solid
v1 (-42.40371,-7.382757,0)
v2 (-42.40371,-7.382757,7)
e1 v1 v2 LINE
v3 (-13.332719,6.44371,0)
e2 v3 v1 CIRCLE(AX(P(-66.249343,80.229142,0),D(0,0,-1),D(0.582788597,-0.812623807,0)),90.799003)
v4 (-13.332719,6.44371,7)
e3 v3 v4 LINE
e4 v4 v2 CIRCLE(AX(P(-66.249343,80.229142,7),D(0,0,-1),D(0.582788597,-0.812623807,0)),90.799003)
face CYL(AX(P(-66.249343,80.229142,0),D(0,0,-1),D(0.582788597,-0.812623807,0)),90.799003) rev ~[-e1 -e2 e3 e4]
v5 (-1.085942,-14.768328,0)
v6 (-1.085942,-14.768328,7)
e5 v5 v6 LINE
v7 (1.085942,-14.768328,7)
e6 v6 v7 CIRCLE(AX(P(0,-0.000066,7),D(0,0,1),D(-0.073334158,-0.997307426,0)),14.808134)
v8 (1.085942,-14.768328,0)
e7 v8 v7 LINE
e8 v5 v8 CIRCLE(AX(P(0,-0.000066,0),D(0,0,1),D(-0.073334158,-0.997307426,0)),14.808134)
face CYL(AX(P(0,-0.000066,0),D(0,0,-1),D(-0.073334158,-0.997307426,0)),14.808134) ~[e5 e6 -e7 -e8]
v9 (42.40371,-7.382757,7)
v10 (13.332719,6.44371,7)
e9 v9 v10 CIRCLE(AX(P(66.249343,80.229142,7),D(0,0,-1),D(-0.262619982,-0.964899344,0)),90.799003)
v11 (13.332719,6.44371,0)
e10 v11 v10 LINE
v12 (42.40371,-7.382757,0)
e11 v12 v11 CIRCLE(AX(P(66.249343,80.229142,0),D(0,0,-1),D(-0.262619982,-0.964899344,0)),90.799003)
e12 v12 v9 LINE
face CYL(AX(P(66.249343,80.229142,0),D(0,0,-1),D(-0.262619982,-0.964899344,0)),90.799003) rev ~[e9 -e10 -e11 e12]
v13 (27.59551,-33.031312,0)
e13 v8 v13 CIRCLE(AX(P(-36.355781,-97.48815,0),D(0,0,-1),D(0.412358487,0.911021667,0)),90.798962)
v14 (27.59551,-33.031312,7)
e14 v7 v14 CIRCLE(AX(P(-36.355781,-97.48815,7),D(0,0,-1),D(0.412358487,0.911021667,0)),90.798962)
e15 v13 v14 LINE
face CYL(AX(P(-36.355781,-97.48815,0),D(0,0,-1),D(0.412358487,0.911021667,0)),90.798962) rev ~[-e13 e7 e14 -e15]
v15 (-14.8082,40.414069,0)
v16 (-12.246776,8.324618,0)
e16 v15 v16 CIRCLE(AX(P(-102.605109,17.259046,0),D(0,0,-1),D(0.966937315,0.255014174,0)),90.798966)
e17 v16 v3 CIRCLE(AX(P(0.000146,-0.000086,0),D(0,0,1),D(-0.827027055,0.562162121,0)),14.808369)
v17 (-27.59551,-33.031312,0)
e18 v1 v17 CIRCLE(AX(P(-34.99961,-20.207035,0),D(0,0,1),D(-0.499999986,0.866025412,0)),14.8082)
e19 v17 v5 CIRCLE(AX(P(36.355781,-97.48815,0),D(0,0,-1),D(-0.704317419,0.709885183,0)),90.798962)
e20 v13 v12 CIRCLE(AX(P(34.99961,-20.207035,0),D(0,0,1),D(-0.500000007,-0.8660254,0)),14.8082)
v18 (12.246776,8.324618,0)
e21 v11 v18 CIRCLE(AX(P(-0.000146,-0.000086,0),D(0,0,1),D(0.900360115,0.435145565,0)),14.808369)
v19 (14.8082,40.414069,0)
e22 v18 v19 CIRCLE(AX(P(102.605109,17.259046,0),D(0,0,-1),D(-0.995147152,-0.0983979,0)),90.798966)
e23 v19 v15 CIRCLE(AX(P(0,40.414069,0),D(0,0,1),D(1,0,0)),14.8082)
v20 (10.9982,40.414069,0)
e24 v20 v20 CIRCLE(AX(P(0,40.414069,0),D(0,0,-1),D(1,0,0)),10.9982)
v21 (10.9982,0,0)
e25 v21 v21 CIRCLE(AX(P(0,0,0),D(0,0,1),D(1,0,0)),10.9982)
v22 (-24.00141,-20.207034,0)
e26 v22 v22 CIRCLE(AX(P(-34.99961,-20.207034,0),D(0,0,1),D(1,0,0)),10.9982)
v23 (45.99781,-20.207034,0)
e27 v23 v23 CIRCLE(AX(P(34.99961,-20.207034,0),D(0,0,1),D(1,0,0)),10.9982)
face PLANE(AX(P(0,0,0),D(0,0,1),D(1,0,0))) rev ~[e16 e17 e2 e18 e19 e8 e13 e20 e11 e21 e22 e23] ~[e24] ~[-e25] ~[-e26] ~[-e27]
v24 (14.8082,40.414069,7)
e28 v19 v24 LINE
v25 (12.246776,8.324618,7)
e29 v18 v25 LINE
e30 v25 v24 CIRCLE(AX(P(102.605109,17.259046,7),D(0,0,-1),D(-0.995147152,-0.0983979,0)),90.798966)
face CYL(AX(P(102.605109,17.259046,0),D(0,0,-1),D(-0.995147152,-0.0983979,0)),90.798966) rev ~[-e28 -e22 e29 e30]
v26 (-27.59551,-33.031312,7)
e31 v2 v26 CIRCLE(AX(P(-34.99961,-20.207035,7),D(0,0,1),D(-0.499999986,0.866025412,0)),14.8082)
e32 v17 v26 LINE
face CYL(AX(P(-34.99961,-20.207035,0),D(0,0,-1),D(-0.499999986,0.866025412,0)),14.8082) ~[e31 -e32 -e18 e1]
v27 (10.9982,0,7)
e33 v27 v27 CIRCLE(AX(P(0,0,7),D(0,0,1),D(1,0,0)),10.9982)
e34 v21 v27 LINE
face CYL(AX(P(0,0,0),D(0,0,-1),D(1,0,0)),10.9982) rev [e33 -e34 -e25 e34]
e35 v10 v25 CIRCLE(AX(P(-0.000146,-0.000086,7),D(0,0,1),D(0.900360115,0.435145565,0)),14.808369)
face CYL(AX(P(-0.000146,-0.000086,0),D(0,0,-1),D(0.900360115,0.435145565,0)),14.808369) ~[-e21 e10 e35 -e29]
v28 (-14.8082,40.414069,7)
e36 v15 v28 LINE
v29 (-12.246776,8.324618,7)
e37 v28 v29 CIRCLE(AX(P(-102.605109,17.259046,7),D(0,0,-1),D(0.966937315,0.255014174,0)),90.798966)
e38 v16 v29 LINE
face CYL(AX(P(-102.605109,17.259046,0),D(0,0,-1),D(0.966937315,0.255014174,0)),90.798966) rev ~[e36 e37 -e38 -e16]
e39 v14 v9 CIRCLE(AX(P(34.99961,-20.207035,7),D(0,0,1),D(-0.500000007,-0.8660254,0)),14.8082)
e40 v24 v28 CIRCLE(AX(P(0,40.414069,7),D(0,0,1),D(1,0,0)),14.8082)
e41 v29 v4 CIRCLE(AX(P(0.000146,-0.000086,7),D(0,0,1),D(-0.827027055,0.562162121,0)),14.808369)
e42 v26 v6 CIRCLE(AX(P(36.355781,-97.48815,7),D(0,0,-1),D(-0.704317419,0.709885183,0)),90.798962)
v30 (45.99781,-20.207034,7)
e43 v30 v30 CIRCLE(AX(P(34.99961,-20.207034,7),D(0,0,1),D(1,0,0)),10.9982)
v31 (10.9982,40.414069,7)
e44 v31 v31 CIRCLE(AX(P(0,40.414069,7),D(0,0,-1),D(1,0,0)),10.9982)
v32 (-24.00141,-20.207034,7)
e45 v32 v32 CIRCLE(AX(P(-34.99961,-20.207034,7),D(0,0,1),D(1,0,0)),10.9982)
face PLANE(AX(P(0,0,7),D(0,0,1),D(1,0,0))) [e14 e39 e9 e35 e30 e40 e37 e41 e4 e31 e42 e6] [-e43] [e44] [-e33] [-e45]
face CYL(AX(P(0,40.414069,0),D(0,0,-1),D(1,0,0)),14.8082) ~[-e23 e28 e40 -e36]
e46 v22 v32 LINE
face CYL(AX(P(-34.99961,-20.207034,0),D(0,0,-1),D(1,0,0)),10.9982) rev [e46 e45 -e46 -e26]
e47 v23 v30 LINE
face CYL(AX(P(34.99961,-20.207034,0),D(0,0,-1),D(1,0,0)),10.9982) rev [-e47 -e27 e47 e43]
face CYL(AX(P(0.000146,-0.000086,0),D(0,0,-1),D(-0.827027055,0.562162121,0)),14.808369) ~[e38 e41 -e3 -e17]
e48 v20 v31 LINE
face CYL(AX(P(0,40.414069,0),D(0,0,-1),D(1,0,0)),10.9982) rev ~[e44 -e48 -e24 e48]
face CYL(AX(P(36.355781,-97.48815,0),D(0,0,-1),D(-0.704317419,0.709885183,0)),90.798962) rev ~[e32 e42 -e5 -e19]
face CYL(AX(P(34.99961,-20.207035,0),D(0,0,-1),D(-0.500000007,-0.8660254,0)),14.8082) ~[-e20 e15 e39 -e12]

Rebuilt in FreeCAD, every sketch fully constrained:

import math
import FreeCAD as App
import Part
import Sketcher
from FreeCAD import Vector
Q = App.Units.Quantity

doc = App.newDocument("Part")
params = doc.addObject("Spreadsheet::Sheet", "Params")
for row, (alias, value) in enumerate([
    ("sketch1_diameter", "0.866 in"),
    ("sketch1_radius", "0.583 in"),
    ("pad1_length", "7 mm"),
], start=1):
    params.set(f"A{row}", alias)
    params.set(f"B{row}", "=" + value)
    params.setAlias(f"B{row}", alias)

body = doc.addObject("PartDesign::Body", "Body")

sketch1 = doc.addObject("Sketcher::SketchObject", "Sketch")
body.addObject(sketch1)
sketch1.AttachmentSupport = (doc.XY_Plane, [""])
sketch1.MapMode = "FlatFace"
sketch1.addGeometry([
    Part.ArcOfCircle(Part.Circle(Vector(102.605109, 17.259046, 0), Vector(0, 0, 1), 90.798966), math.radians(165.225575), math.radians(185.646922)),
    Part.ArcOfCircle(Part.Circle(Vector(0, 40.414069, 0), Vector(0, 0, 1), 14.8082), math.radians(0), math.radians(180)),
    Part.ArcOfCircle(Part.Circle(Vector(-102.605109, 17.259046, 0), Vector(0, 0, 1), 90.798966), math.radians(-5.646922), math.radians(14.774425)),
    Part.ArcOfCircle(Part.Circle(Vector(0.000146, -0.000086, 0), Vector(0, 0, 1), 14.808369), math.radians(145.794545), math.radians(154.205443)),
    Part.ArcOfCircle(Part.Circle(Vector(-66.249343, 80.229142, 0), Vector(0, 0, 1), 90.799003), math.radians(-74.77442), math.radians(-54.353082)),
    Part.ArcOfCircle(Part.Circle(Vector(-34.99961, -20.207035, 0), Vector(0, 0, 1), 14.8082), math.radians(119.999999), math.radians(300)),
    Part.ArcOfCircle(Part.Circle(Vector(36.355781, -97.48815, 0), Vector(0, 0, 1), 90.798962), math.radians(114.353078), math.radians(134.774426)),
    Part.ArcOfCircle(Part.Circle(Vector(0, -0.000066, 0), Vector(0, 0, 1), 14.808134), math.radians(-94.205513), math.radians(-85.794487)),
    Part.ArcOfCircle(Part.Circle(Vector(-36.355781, -97.48815, 0), Vector(0, 0, 1), 90.798962), math.radians(45.225574), math.radians(65.646922)),
    Part.ArcOfCircle(Part.Circle(Vector(34.99961, -20.207035, 0), Vector(0, 0, 1), 14.8082), math.radians(-120), math.radians(60.000001)),
    Part.ArcOfCircle(Part.Circle(Vector(66.249343, 80.229142, 0), Vector(0, 0, 1), 90.799003), math.radians(-125.646918), math.radians(-105.22558)),
    Part.ArcOfCircle(Part.Circle(Vector(-0.000146, -0.000086, 0), Vector(0, 0, 1), 14.808369), math.radians(25.794557), math.radians(34.205455)),
    Part.Circle(Vector(-34.99961, -20.207034, 0), Vector(0, 0, 1), 10.9982),
    Part.Circle(Vector(34.99961, -20.207034, 0), Vector(0, 0, 1), 10.9982),
    Part.Circle(Vector(0, 0, 0), Vector(0, 0, 1), 10.9982),
    Part.Circle(Vector(0, 40.414069, 0), Vector(0, 0, 1), 10.9982),
], False)
sketch1.addConstraint([
    Sketcher.Constraint("Coincident", 0, 1, 1, 1),
    Sketcher.Constraint("Coincident", 1, 2, 2, 2),
    Sketcher.Constraint("Coincident", 2, 1, 3, 1),
    Sketcher.Constraint("Coincident", 3, 2, 4, 2),
    Sketcher.Constraint("Coincident", 4, 1, 5, 1),
    Sketcher.Constraint("Coincident", 5, 2, 6, 2),
    Sketcher.Constraint("Coincident", 6, 1, 7, 1),
    Sketcher.Constraint("Coincident", 7, 2, 8, 2),
    Sketcher.Constraint("Coincident", 8, 1, 9, 1),
    Sketcher.Constraint("Coincident", 9, 2, 10, 2),
    Sketcher.Constraint("Coincident", 10, 1, 11, 1),
    Sketcher.Constraint("Coincident", 11, 2, 0, 2),
    Sketcher.Constraint("Coincident", 14, 3, -1, 1),
    Sketcher.Constraint("Coincident", 12, 3, 5, 3),
    Sketcher.Constraint("Coincident", 13, 3, 9, 3),
    Sketcher.Constraint("Coincident", 15, 3, 1, 3),
    Sketcher.Constraint("Equal", 0, 2),
    Sketcher.Constraint("Equal", 1, 5),
    Sketcher.Constraint("Equal", 6, 8),
    Sketcher.Constraint("Equal", 5, 9),
    Sketcher.Constraint("Equal", 4, 10),
    Sketcher.Constraint("Equal", 3, 11),
    Sketcher.Constraint("Equal", 12, 13),
    Sketcher.Constraint("Equal", 13, 14),
    Sketcher.Constraint("Equal", 14, 15),
    Sketcher.Constraint("Symmetric", 0, 3, 2, 3, -2),
    Sketcher.Constraint("Symmetric", 6, 3, 8, 3, -2),
    Sketcher.Constraint("Symmetric", 5, 3, 9, 3, -2),
    Sketcher.Constraint("Symmetric", 4, 3, 10, 3, -2),
    Sketcher.Constraint("Symmetric", 3, 3, 11, 3, -2),
    Sketcher.Constraint("PointOnObject", 1, 3, -2),
    Sketcher.Constraint("PointOnObject", 7, 3, -2),
    Sketcher.Constraint("Horizontal", 15, 3, 0, 1),
    Sketcher.Constraint("Diameter", 12, Q("0.866 in")),
    Sketcher.Constraint("Radius", 1, Q("0.583 in")),
    Sketcher.Constraint("Radius", 3, 14.808369),
    Sketcher.Constraint("Radius", 6, 90.798962),
    Sketcher.Constraint("DistanceX", 4, 1, 5, 2, Q("0.583 in")),
    Sketcher.Constraint("Radius", 0, 90.798966),
    Sketcher.Constraint("Radius", 4, 90.799003),
    Sketcher.Constraint("Radius", 7, 14.808134),
    Sketcher.Constraint("DistanceX", 4, 1, 12, 3, Q("0.2915 in")),
    Sketcher.Constraint("DistanceX", 2, 3, 5, 3, 67.605499),
    Sketcher.Constraint("DistanceX", -1, 1, 0, 3, 102.605109),
    Sketcher.Constraint("DistanceY", -1, 1, 1, 3, 40.414069),
    Sketcher.Constraint("DistanceY", -1, 1, 4, 3, 80.229142),
    Sketcher.Constraint("DistanceX", -1, 1, 6, 3, 36.355781),
    Sketcher.Constraint("DistanceY", 6, 3, -1, 1, 97.48815),
    Sketcher.Constraint("DistanceY", -1, 1, 2, 1, 8.324618),
    Sketcher.Constraint("DistanceX", 3, 2, -1, 1, 13.332719),
    Sketcher.Constraint("DistanceX", -1, 1, 7, 2, 1.085942),
])
sketch1.setExpression("Constraints[33]", "Params.sketch1_diameter")
sketch1.setExpression("Constraints[34]", "Params.sketch1_radius")
pad1 = doc.addObject("PartDesign::Pad", "Pad")
body.addObject(pad1)
pad1.Profile = sketch1
pad1.setExpression("Length", "Params.pad1_length")

doc.recompute()
